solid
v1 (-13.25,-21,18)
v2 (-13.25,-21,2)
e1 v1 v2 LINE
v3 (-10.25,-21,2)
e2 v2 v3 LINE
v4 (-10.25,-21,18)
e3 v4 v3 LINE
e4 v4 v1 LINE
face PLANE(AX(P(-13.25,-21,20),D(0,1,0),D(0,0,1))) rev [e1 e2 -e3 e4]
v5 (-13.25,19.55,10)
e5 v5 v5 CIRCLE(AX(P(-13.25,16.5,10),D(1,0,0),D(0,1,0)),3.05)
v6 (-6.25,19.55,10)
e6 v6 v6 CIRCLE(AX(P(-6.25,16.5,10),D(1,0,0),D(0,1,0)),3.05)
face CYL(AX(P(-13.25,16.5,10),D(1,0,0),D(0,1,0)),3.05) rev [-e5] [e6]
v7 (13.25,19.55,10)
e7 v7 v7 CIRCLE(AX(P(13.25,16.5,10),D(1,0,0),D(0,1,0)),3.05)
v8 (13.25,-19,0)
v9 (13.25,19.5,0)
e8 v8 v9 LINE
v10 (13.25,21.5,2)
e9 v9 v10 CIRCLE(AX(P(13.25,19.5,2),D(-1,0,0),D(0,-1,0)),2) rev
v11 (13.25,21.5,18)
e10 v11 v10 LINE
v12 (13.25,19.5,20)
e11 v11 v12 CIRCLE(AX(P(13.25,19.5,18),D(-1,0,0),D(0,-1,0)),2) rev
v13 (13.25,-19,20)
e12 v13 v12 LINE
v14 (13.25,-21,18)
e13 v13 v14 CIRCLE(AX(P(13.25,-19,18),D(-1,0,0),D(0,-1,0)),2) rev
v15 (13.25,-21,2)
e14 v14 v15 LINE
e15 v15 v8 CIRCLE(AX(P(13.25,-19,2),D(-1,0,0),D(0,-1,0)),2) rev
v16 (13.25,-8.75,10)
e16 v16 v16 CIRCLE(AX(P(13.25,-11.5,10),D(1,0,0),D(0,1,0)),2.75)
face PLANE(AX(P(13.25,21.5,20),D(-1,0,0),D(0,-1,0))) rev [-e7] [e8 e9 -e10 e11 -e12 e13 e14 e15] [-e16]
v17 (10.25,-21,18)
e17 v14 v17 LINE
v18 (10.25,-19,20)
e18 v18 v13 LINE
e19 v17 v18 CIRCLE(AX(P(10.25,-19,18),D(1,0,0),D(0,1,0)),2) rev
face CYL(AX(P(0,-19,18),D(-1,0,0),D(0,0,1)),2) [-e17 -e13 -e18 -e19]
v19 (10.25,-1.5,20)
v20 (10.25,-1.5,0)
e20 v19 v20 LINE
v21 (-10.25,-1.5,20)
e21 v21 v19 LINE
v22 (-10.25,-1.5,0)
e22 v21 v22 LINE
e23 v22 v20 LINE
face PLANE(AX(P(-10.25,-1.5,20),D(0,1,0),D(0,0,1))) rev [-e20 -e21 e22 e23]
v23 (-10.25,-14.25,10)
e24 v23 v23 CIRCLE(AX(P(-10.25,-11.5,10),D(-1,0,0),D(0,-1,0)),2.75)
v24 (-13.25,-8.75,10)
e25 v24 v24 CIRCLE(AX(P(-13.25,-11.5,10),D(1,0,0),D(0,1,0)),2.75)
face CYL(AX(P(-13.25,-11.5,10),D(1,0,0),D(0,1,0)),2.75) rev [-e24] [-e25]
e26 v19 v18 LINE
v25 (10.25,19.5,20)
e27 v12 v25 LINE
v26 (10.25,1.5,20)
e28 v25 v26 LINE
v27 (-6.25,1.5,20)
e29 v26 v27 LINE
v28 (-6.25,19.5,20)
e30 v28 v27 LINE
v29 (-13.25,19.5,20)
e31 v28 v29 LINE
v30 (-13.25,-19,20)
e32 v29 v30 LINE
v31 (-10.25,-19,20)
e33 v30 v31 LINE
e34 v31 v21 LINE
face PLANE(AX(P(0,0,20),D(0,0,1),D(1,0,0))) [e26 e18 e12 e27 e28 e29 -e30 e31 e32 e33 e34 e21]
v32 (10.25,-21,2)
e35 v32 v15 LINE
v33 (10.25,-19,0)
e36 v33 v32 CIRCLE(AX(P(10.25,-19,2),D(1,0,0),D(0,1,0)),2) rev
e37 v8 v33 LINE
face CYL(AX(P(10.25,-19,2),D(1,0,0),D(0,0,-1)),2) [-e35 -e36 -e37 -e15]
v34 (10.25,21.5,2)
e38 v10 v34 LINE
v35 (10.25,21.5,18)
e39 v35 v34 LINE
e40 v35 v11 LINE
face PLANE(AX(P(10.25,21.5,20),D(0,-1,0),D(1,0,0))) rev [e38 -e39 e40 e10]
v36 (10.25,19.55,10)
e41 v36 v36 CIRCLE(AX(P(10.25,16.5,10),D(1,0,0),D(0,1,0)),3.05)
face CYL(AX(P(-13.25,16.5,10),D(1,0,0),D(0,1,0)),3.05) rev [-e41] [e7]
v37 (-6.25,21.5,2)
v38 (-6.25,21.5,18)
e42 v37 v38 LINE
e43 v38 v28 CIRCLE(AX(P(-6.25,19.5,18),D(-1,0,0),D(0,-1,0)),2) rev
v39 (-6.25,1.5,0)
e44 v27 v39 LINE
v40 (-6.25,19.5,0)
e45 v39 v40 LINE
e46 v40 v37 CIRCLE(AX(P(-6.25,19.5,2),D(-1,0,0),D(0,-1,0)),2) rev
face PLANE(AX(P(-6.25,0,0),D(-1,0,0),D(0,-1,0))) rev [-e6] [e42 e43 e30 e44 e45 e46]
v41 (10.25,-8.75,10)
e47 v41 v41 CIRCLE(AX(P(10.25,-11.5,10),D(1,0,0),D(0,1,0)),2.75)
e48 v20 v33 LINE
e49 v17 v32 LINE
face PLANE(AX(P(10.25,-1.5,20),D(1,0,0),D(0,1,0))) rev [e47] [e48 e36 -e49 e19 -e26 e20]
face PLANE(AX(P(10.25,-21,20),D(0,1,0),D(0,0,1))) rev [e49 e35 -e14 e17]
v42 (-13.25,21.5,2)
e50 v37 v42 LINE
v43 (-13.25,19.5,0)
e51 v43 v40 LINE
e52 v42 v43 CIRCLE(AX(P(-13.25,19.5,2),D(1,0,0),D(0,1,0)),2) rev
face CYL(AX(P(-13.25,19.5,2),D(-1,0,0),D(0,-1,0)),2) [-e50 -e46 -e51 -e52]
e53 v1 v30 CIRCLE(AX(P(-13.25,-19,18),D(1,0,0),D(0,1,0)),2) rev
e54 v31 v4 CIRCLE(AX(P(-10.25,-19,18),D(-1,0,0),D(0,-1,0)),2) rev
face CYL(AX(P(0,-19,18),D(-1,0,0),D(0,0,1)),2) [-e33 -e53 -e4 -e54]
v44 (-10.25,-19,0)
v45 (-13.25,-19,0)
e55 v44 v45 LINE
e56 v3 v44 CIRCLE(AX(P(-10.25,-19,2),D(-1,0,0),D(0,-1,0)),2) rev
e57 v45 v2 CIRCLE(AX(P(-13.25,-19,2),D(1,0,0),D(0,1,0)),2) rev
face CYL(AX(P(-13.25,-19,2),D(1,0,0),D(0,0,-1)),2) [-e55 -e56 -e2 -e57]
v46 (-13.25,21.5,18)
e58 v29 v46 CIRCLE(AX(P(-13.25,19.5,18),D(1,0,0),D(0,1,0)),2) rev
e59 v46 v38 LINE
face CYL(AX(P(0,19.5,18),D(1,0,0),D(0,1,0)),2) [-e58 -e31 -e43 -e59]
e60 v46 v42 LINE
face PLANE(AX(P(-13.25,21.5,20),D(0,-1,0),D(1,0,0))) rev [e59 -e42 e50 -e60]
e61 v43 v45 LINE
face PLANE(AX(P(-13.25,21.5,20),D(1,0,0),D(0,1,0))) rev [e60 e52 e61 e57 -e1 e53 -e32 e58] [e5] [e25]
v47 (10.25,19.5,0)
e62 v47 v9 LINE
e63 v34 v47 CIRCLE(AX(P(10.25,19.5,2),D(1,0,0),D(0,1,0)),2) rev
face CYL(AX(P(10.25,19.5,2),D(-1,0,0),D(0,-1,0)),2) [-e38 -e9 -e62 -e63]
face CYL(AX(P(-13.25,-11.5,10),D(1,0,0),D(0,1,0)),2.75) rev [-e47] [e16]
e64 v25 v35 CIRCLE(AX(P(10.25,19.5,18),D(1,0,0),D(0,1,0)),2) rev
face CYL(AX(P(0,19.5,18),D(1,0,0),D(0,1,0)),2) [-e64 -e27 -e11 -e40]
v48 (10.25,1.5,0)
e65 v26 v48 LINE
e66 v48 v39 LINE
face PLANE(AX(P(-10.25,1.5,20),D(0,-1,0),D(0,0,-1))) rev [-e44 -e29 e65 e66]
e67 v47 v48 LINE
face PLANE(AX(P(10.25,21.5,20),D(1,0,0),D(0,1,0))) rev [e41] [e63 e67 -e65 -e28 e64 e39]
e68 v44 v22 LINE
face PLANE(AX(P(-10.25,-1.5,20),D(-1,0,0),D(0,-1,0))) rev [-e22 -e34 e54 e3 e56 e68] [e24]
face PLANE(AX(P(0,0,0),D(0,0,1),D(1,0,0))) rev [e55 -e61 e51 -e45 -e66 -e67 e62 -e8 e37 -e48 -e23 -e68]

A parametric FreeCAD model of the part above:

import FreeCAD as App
import Part
import Sketcher

V = App.Vector


def edges_at(feature, points):
    """Names of the edges that pass closest to the given points."""
    edges = feature.Shape.Edges
    near = lambda p: min(range(len(edges)), key=lambda i: edges[i].distToShape(Part.Vertex(*p))[0])
    return sorted({f"Edge{near(p) + 1}" for p in points})

doc = App.newDocument("Part")
body = doc.addObject("PartDesign::Body", "Body")

sketch1 = body.newObject("Sketcher::SketchObject", "Sketch")
sketch1.AttachmentSupport = (doc.getObject("XY_Plane"), [""])
sketch1.MapMode = "FlatFace"
sketch1.addGeometry([
    Part.LineSegment(V(10.25, 1.5, 0), V(-10.25, 1.5, 0)),
    Part.LineSegment(V(-10.25, 1.5, 0), V(-10.25, 21.5, 0)),
    Part.LineSegment(V(-10.25, 21.5, 0), V(-13.25, 21.5, 0)),
    Part.LineSegment(V(-13.25, 21.5, 0), V(-13.25, -21, 0)),
    Part.LineSegment(V(-13.25, -21, 0), V(-10.25, -21, 0)),
    Part.LineSegment(V(-10.25, -21, 0), V(-10.25, -1.5, 0)),
    Part.LineSegment(V(-10.25, -1.5, 0), V(10.25, -1.5, 0)),
    Part.LineSegment(V(10.25, -1.5, 0), V(10.25, -21, 0)),
    Part.LineSegment(V(10.25, -21, 0), V(13.25, -21, 0)),
    Part.LineSegment(V(13.25, -21, 0), V(13.25, 21.5, 0)),
    Part.LineSegment(V(13.25, 21.5, 0), V(10.25, 21.5, 0)),
    Part.LineSegment(V(10.25, 21.5, 0), V(10.25, 1.5, 0)),
], False)
sketch1.addConstraint([
    Sketcher.Constraint("Coincident", 0, 2, 1, 1),
    Sketcher.Constraint("Coincident", 1, 2, 2, 1),
    Sketcher.Constraint("Coincident", 2, 2, 3, 1),
    Sketcher.Constraint("Coincident", 3, 2, 4, 1),
    Sketcher.Constraint("Coincident", 4, 2, 5, 1),
    Sketcher.Constraint("Coincident", 5, 2, 6, 1),
    Sketcher.Constraint("Coincident", 6, 2, 7, 1),
    Sketcher.Constraint("Coincident", 7, 2, 8, 1),
    Sketcher.Constraint("Coincident", 8, 2, 9, 1),
    Sketcher.Constraint("Coincident", 9, 2, 10, 1),
    Sketcher.Constraint("Coincident", 10, 2, 11, 1),
    Sketcher.Constraint("Coincident", 11, 2, 0, 1),
    Sketcher.Constraint("Horizontal", 0),
    Sketcher.Constraint("Vertical", 1),
    Sketcher.Constraint("Horizontal", 2),
    Sketcher.Constraint("Vertical", 3),
    Sketcher.Constraint("Horizontal", 4),
    Sketcher.Constraint("Vertical", 5),
    Sketcher.Constraint("Horizontal", 6),
    Sketcher.Constraint("Vertical", 7),
    Sketcher.Constraint("Horizontal", 8),
    Sketcher.Constraint("Vertical", 9),
    Sketcher.Constraint("Horizontal", 10),
    Sketcher.Constraint("Vertical", 11),
    Sketcher.Constraint("Symmetric", 0, 2, 6, 2, -1, 1),
    Sketcher.Constraint("Symmetric", 4, 2, 7, 2, -2),
    Sketcher.Constraint("Symmetric", 2, 2, 9, 2, -2),
    Sketcher.Constraint("Vertical", 7, 2, 10, 2),
    Sketcher.Constraint("DistanceX", 2, 2, 2, 1, 3.0),
    Sketcher.Constraint("DistanceY", 1, 1, 1, 2, 20.0),
    Sketcher.Constraint("DistanceX", 0, 2, 0, 1, 20.5),
    Sketcher.Constraint("DistanceY", 3, 2, 3, 1, 42.5),
    Sketcher.Constraint("DistanceY", 5, 1, 5, 2, 19.5),
])
pad1 = body.newObject("PartDesign::Pad", "Pad")
pad1.Profile = sketch1
pad1.Length = 20

sketch2 = body.newObject("Sketcher::SketchObject", "Sketch001")
sketch2.AttachmentSupport = (doc.getObject("YZ_Plane"), [""])
sketch2.MapMode = "FlatFace"
sketch2.AttachmentOffset = App.Placement(V(0, 0, 13.25), App.Rotation())
sketch2.addGeometry([
    Part.Circle(V(-11.5, 10, 0), V(0, 0, 1), 2.75),
    Part.Circle(V(16.5, 10, 0), V(0, 0, 1), 3.05),
], False)
sketch2.addConstraint([
    Sketcher.Constraint("Horizontal", 0, 3, 1, 3),
    Sketcher.Constraint("Diameter", 0, 5.5),
    Sketcher.Constraint("Diameter", 1, 6.1),
    Sketcher.Constraint("DistanceY", -1, 1, 0, 3, 10.0),
    Sketcher.Constraint("DistanceX", 0, 3, 1, 3, 28.0),
    Sketcher.Constraint("DistanceX", 0, 3, -1, 1, 11.5),
])
pocket1 = body.newObject("PartDesign::Pocket", "Pocket")
pocket1.Profile = sketch2
pocket1.Type = "ThroughAll"

sketch3 = body.newObject("Sketcher::SketchObject", "Sketch002")
sketch3.AttachmentSupport = (doc.getObject("YZ_Plane"), [""])
sketch3.MapMode = "FlatFace"
sketch3.AttachmentOffset = App.Placement(V(0, 0, -6.25), App.Rotation())
sketch3.addGeometry([
    Part.LineSegment(V(21.5, 20, 0), V(1.5, 20, 0)),
    Part.LineSegment(V(1.5, 20, 0), V(1.5, 0, 0)),
    Part.LineSegment(V(1.5, 0, 0), V(21.5, 0, 0)),
    Part.LineSegment(V(21.5, 0, 0), V(21.5, 20, 0)),
    Part.Circle(V(16.5, 10, 0), V(0, 0, 1), 3.05),
], False)
sketch3.addConstraint([
    Sketcher.Constraint("Coincident", 0, 2, 1, 1),
    Sketcher.Constraint("Coincident", 1, 2, 2, 1),
    Sketcher.Constraint("Coincident", 2, 2, 3, 1),
    Sketcher.Constraint("Coincident", 3, 2, 0, 1),
    Sketcher.Constraint("Horizontal", 0),
    Sketcher.Constraint("Vertical", 1),
    Sketcher.Constraint("Horizontal", 2),
    Sketcher.Constraint("Vertical", 3),
    Sketcher.Constraint("PointOnObject", 1, 2, -1),
    Sketcher.Constraint("Equal", 2, 1),
    Sketcher.Constraint("Diameter", 4, 6.1),
    Sketcher.Constraint("DistanceX", 0, 2, 0, 1, 20.0),
    Sketcher.Constraint("DistanceY", -1, 1, 4, 3, 10.0),
    Sketcher.Constraint("DistanceX", 0, 2, 4, 3, 15.0),
    Sketcher.Constraint("DistanceX", -1, 1, 4, 3, 16.5),
])
pad2 = body.newObject("PartDesign::Pad", "Pad001")
pad2.Profile = sketch3
pad2.Length = 4
pad2.Reversed = True
doc.recompute()

fillet = body.newObject("PartDesign::Fillet", "Fillet")
fillet.Base = (pad2, edges_at(pad2, [
    (-9.75, 21.5, 0),
    (11.75, 21.5, 0),
    (11.75, -21, 0),
    (-11.75, -21, 0),
    (11.75, -21, 20),
    (11.75, 21.5, 20),
    (-9.75, 21.5, 20),
    (-11.75, -21, 20),
]))
fillet.Radius = 2

doc.recompute()
